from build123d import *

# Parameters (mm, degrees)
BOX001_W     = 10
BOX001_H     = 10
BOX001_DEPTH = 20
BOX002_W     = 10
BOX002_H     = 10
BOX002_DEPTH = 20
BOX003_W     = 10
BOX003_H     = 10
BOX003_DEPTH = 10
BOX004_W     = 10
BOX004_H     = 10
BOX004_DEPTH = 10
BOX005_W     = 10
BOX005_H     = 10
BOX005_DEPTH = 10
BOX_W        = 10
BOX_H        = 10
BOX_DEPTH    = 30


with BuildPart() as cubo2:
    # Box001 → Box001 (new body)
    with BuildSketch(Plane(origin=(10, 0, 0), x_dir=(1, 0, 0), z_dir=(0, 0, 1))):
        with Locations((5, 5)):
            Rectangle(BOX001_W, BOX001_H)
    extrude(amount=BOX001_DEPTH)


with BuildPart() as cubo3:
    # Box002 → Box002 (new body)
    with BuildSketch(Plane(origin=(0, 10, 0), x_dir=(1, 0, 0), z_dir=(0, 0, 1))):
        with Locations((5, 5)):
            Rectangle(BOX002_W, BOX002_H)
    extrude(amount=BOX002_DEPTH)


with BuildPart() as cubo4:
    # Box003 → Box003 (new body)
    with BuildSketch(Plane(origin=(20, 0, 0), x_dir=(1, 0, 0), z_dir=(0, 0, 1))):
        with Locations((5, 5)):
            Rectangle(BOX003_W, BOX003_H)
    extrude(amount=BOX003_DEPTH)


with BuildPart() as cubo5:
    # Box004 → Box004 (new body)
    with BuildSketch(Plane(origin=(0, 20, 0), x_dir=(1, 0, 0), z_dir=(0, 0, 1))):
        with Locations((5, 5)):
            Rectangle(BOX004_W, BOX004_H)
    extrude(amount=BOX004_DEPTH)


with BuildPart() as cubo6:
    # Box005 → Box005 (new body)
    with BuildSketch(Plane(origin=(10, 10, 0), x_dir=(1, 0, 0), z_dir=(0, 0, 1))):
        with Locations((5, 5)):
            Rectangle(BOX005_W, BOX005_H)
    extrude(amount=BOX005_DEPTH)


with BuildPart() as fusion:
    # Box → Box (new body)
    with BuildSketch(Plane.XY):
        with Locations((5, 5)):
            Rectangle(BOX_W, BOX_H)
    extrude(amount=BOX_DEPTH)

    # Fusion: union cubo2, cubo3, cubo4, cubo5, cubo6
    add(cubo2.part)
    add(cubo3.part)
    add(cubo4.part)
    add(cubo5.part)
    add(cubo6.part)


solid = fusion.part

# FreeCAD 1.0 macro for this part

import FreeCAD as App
import Part
import Sketcher
from FreeCAD import Vector
Q = App.Units.Quantity


def add_polygon(sketch, points):
    """Adds a closed chain of lines whose ends are joined by coincident constraints."""
    first, n = sketch.GeometryCount, len(points)
    for a, b in zip(points, points[1:] + points[:1]):
        sketch.addGeometry(Part.LineSegment(App.Vector(*a, 0), App.Vector(*b, 0)), False)
    for i in range(n):
        sketch.addConstraint(Sketcher.Constraint("Coincident", first + i, 2, first + (i + 1) % n, 1))

doc = App.newDocument("Part")
body = doc.addObject("PartDesign::Body", "Body")

sketch1 = doc.addObject("Sketcher::SketchObject", "Sketch")
body.addObject(sketch1)
sketch1.AttachmentSupport = (doc.XY_Plane, [""])
sketch1.MapMode = "FlatFace"
add_polygon(sketch1, [(10, 10), (10, 0), (20, 0), (20, 10)])
sketch1.addConstraint([
    Sketcher.Constraint("Vertical", 0),
    Sketcher.Constraint("Horizontal", 1),
    Sketcher.Constraint("Vertical", 2),
    Sketcher.Constraint("Horizontal", 3),
    Sketcher.Constraint("PointOnObject", 0, 2, -1),
    Sketcher.Constraint("Equal", 3, 0),
    Sketcher.Constraint("DistanceX", 1, 1, 1, 2, Q("10 mm")),
    Sketcher.Constraint("DistanceX", -1, 1, 0, 2, Q("10 mm")),
])
pad1 = doc.addObject("PartDesign::Pad", "Pad")
body.addObject(pad1)
pad1.Profile = sketch1
pad1.Length = 20
body2 = doc.addObject("PartDesign::Body", "Body001")

sketch2 = doc.addObject("Sketcher::SketchObject", "Sketch001")
body2.addObject(sketch2)
sketch2.AttachmentSupport = (doc.getObject("XY_Plane001"), [""])
sketch2.MapMode = "FlatFace"
add_polygon(sketch2, [(0, 20), (0, 10), (10, 10), (10, 20)])
sketch2.addConstraint([
    Sketcher.Constraint("Vertical", 0),
    Sketcher.Constraint("Horizontal", 1),
    Sketcher.Constraint("Vertical", 2),
    Sketcher.Constraint("Horizontal", 3),
    Sketcher.Constraint("PointOnObject", 0, 2, -2),
    Sketcher.Constraint("Equal", 3, 0),
    Sketcher.Constraint("DistanceX", 1, 1, 1, 2, Q("10 mm")),
    Sketcher.Constraint("DistanceY", -1, 1, 0, 2, Q("10 mm")),
])
pad2 = doc.addObject("PartDesign::Pad", "Pad001")
body2.addObject(pad2)
pad2.Profile = sketch2
pad2.Length = 20
body3 = doc.addObject("PartDesign::Body", "Body002")

sketch3 = doc.addObject("Sketcher::SketchObject", "Sketch002")
body3.addObject(sketch3)
sketch3.AttachmentSupport = (doc.getObject("XY_Plane002"), [""])
sketch3.MapMode = "FlatFace"
add_polygon(sketch3, [(20, 10), (20, 0), (30, 0), (30, 10)])
sketch3.addConstraint([
    Sketcher.Constraint("Vertical", 0),
    Sketcher.Constraint("Horizontal", 1),
    Sketcher.Constraint("Vertical", 2),
    Sketcher.Constraint("Horizontal", 3),
    Sketcher.Constraint("PointOnObject", 0, 2, -1),
    Sketcher.Constraint("Equal", 3, 0),
    Sketcher.Constraint("DistanceX", 1, 1, 1, 2, Q("10 mm")),
    Sketcher.Constraint("DistanceX", -1, 1, 0, 2, Q("20 mm")),
])
pad3 = doc.addObject("PartDesign::Pad", "Pad002")
body3.addObject(pad3)
pad3.Profile = sketch3
pad3.Length = 10
body4 = doc.addObject("PartDesign::Body", "Body003")

sketch4 = doc.addObject("Sketcher::SketchObject", "Sketch003")
body4.addObject(sketch4)
sketch4.AttachmentSupport = (doc.getObject("XY_Plane003"), [""])
sketch4.MapMode = "FlatFace"
add_polygon(sketch4, [(0, 30), (0, 20), (10, 20), (10, 30)])
sketch4.addConstraint([
    Sketcher.Constraint("Vertical", 0),
    Sketcher.Constraint("Horizontal", 1),
    Sketcher.Constraint("Vertical", 2),
    Sketcher.Constraint("Horizontal", 3),
    Sketcher.Constraint("PointOnObject", 0, 2, -2),
    Sketcher.Constraint("Equal", 3, 0),
    Sketcher.Constraint("DistanceX", 1, 1, 1, 2, Q("10 mm")),
    Sketcher.Constraint("DistanceY", -1, 1, 0, 2, Q("20 mm")),
])
pad4 = doc.addObject("PartDesign::Pad", "Pad003")
body4.addObject(pad4)
pad4.Profile = sketch4
pad4.Length = 10
body5 = doc.addObject("PartDesign::Body", "Body004")

sketch5 = doc.addObject("Sketcher::SketchObject", "Sketch004")
body5.addObject(sketch5)
sketch5.AttachmentSupport = (doc.getObject("XY_Plane004"), [""])
sketch5.MapMode = "FlatFace"
add_polygon(sketch5, [(10, 20), (10, 10), (20, 10), (20, 20)])
sketch5.addConstraint([
    Sketcher.Constraint("Vertical", 0),
    Sketcher.Constraint("Horizontal", 1),
    Sketcher.Constraint("Vertical", 2),
    Sketcher.Constraint("Horizontal", 3),
    Sketcher.Constraint("Equal", 3, 0),
    Sketcher.Constraint("DistanceX", 1, 1, 1, 2, Q("10 mm")),
    Sketcher.Constraint("DistanceX", -1, 1, 0, 2, Q("10 mm")),
    Sketcher.Constraint("DistanceY", -1, 1, 0, 2, Q("10 mm")),
])
pad5 = doc.addObject("PartDesign::Pad", "Pad004")
body5.addObject(pad5)
pad5.Profile = sketch5
pad5.Length = 10
body6 = doc.addObject("PartDesign::Body", "Body005")

sketch6 = doc.addObject("Sketcher::SketchObject", "Sketch005")
body6.addObject(sketch6)
sketch6.AttachmentSupport = (doc.getObject("XY_Plane005"), [""])
sketch6.MapMode = "FlatFace"
add_polygon(sketch6, [(0, 10), (0, 0), (10, 0), (10, 10)])
sketch6.addConstraint([
    Sketcher.Constraint("Vertical", 0),
    Sketcher.Constraint("Horizontal", 1),
    Sketcher.Constraint("Vertical", 2),
    Sketcher.Constraint("Horizontal", 3),
    Sketcher.Constraint("Coincident", 0, 2, -1, 1),
    Sketcher.Constraint("Equal", 3, 0),
    Sketcher.Constraint("DistanceX", 1, 1, 1, 2, Q("10 mm")),
])
pad6 = doc.addObject("PartDesign::Pad", "Pad005")
body6.addObject(pad6)
pad6.Profile = sketch6
pad6.Length = 30
doc.recompute()

boolean = doc.addObject("PartDesign::Boolean", "Boolean")
body6.addObject(boolean)
boolean.Type = "Fuse"
boolean.addObjects([body])
doc.recompute()

boolean2 = doc.addObject("PartDesign::Boolean", "Boolean001")
body6.addObject(boolean2)
boolean2.Type = "Fuse"
boolean2.addObjects([body2])
doc.recompute()

boolean3 = doc.addObject("PartDesign::Boolean", "Boolean002")
body6.addObject(boolean3)
boolean3.Type = "Fuse"
boolean3.addObjects([body3])
doc.recompute()

boolean4 = doc.addObject("PartDesign::Boolean", "Boolean003")
body6.addObject(boolean4)
boolean4.Type = "Fuse"
boolean4.addObjects([body4])
doc.recompute()

boolean5 = doc.addObject("PartDesign::Boolean", "Boolean004")
body6.addObject(boolean5)
boolean5.Type = "Fuse"
boolean5.addObjects([body5])

doc.recompute()
